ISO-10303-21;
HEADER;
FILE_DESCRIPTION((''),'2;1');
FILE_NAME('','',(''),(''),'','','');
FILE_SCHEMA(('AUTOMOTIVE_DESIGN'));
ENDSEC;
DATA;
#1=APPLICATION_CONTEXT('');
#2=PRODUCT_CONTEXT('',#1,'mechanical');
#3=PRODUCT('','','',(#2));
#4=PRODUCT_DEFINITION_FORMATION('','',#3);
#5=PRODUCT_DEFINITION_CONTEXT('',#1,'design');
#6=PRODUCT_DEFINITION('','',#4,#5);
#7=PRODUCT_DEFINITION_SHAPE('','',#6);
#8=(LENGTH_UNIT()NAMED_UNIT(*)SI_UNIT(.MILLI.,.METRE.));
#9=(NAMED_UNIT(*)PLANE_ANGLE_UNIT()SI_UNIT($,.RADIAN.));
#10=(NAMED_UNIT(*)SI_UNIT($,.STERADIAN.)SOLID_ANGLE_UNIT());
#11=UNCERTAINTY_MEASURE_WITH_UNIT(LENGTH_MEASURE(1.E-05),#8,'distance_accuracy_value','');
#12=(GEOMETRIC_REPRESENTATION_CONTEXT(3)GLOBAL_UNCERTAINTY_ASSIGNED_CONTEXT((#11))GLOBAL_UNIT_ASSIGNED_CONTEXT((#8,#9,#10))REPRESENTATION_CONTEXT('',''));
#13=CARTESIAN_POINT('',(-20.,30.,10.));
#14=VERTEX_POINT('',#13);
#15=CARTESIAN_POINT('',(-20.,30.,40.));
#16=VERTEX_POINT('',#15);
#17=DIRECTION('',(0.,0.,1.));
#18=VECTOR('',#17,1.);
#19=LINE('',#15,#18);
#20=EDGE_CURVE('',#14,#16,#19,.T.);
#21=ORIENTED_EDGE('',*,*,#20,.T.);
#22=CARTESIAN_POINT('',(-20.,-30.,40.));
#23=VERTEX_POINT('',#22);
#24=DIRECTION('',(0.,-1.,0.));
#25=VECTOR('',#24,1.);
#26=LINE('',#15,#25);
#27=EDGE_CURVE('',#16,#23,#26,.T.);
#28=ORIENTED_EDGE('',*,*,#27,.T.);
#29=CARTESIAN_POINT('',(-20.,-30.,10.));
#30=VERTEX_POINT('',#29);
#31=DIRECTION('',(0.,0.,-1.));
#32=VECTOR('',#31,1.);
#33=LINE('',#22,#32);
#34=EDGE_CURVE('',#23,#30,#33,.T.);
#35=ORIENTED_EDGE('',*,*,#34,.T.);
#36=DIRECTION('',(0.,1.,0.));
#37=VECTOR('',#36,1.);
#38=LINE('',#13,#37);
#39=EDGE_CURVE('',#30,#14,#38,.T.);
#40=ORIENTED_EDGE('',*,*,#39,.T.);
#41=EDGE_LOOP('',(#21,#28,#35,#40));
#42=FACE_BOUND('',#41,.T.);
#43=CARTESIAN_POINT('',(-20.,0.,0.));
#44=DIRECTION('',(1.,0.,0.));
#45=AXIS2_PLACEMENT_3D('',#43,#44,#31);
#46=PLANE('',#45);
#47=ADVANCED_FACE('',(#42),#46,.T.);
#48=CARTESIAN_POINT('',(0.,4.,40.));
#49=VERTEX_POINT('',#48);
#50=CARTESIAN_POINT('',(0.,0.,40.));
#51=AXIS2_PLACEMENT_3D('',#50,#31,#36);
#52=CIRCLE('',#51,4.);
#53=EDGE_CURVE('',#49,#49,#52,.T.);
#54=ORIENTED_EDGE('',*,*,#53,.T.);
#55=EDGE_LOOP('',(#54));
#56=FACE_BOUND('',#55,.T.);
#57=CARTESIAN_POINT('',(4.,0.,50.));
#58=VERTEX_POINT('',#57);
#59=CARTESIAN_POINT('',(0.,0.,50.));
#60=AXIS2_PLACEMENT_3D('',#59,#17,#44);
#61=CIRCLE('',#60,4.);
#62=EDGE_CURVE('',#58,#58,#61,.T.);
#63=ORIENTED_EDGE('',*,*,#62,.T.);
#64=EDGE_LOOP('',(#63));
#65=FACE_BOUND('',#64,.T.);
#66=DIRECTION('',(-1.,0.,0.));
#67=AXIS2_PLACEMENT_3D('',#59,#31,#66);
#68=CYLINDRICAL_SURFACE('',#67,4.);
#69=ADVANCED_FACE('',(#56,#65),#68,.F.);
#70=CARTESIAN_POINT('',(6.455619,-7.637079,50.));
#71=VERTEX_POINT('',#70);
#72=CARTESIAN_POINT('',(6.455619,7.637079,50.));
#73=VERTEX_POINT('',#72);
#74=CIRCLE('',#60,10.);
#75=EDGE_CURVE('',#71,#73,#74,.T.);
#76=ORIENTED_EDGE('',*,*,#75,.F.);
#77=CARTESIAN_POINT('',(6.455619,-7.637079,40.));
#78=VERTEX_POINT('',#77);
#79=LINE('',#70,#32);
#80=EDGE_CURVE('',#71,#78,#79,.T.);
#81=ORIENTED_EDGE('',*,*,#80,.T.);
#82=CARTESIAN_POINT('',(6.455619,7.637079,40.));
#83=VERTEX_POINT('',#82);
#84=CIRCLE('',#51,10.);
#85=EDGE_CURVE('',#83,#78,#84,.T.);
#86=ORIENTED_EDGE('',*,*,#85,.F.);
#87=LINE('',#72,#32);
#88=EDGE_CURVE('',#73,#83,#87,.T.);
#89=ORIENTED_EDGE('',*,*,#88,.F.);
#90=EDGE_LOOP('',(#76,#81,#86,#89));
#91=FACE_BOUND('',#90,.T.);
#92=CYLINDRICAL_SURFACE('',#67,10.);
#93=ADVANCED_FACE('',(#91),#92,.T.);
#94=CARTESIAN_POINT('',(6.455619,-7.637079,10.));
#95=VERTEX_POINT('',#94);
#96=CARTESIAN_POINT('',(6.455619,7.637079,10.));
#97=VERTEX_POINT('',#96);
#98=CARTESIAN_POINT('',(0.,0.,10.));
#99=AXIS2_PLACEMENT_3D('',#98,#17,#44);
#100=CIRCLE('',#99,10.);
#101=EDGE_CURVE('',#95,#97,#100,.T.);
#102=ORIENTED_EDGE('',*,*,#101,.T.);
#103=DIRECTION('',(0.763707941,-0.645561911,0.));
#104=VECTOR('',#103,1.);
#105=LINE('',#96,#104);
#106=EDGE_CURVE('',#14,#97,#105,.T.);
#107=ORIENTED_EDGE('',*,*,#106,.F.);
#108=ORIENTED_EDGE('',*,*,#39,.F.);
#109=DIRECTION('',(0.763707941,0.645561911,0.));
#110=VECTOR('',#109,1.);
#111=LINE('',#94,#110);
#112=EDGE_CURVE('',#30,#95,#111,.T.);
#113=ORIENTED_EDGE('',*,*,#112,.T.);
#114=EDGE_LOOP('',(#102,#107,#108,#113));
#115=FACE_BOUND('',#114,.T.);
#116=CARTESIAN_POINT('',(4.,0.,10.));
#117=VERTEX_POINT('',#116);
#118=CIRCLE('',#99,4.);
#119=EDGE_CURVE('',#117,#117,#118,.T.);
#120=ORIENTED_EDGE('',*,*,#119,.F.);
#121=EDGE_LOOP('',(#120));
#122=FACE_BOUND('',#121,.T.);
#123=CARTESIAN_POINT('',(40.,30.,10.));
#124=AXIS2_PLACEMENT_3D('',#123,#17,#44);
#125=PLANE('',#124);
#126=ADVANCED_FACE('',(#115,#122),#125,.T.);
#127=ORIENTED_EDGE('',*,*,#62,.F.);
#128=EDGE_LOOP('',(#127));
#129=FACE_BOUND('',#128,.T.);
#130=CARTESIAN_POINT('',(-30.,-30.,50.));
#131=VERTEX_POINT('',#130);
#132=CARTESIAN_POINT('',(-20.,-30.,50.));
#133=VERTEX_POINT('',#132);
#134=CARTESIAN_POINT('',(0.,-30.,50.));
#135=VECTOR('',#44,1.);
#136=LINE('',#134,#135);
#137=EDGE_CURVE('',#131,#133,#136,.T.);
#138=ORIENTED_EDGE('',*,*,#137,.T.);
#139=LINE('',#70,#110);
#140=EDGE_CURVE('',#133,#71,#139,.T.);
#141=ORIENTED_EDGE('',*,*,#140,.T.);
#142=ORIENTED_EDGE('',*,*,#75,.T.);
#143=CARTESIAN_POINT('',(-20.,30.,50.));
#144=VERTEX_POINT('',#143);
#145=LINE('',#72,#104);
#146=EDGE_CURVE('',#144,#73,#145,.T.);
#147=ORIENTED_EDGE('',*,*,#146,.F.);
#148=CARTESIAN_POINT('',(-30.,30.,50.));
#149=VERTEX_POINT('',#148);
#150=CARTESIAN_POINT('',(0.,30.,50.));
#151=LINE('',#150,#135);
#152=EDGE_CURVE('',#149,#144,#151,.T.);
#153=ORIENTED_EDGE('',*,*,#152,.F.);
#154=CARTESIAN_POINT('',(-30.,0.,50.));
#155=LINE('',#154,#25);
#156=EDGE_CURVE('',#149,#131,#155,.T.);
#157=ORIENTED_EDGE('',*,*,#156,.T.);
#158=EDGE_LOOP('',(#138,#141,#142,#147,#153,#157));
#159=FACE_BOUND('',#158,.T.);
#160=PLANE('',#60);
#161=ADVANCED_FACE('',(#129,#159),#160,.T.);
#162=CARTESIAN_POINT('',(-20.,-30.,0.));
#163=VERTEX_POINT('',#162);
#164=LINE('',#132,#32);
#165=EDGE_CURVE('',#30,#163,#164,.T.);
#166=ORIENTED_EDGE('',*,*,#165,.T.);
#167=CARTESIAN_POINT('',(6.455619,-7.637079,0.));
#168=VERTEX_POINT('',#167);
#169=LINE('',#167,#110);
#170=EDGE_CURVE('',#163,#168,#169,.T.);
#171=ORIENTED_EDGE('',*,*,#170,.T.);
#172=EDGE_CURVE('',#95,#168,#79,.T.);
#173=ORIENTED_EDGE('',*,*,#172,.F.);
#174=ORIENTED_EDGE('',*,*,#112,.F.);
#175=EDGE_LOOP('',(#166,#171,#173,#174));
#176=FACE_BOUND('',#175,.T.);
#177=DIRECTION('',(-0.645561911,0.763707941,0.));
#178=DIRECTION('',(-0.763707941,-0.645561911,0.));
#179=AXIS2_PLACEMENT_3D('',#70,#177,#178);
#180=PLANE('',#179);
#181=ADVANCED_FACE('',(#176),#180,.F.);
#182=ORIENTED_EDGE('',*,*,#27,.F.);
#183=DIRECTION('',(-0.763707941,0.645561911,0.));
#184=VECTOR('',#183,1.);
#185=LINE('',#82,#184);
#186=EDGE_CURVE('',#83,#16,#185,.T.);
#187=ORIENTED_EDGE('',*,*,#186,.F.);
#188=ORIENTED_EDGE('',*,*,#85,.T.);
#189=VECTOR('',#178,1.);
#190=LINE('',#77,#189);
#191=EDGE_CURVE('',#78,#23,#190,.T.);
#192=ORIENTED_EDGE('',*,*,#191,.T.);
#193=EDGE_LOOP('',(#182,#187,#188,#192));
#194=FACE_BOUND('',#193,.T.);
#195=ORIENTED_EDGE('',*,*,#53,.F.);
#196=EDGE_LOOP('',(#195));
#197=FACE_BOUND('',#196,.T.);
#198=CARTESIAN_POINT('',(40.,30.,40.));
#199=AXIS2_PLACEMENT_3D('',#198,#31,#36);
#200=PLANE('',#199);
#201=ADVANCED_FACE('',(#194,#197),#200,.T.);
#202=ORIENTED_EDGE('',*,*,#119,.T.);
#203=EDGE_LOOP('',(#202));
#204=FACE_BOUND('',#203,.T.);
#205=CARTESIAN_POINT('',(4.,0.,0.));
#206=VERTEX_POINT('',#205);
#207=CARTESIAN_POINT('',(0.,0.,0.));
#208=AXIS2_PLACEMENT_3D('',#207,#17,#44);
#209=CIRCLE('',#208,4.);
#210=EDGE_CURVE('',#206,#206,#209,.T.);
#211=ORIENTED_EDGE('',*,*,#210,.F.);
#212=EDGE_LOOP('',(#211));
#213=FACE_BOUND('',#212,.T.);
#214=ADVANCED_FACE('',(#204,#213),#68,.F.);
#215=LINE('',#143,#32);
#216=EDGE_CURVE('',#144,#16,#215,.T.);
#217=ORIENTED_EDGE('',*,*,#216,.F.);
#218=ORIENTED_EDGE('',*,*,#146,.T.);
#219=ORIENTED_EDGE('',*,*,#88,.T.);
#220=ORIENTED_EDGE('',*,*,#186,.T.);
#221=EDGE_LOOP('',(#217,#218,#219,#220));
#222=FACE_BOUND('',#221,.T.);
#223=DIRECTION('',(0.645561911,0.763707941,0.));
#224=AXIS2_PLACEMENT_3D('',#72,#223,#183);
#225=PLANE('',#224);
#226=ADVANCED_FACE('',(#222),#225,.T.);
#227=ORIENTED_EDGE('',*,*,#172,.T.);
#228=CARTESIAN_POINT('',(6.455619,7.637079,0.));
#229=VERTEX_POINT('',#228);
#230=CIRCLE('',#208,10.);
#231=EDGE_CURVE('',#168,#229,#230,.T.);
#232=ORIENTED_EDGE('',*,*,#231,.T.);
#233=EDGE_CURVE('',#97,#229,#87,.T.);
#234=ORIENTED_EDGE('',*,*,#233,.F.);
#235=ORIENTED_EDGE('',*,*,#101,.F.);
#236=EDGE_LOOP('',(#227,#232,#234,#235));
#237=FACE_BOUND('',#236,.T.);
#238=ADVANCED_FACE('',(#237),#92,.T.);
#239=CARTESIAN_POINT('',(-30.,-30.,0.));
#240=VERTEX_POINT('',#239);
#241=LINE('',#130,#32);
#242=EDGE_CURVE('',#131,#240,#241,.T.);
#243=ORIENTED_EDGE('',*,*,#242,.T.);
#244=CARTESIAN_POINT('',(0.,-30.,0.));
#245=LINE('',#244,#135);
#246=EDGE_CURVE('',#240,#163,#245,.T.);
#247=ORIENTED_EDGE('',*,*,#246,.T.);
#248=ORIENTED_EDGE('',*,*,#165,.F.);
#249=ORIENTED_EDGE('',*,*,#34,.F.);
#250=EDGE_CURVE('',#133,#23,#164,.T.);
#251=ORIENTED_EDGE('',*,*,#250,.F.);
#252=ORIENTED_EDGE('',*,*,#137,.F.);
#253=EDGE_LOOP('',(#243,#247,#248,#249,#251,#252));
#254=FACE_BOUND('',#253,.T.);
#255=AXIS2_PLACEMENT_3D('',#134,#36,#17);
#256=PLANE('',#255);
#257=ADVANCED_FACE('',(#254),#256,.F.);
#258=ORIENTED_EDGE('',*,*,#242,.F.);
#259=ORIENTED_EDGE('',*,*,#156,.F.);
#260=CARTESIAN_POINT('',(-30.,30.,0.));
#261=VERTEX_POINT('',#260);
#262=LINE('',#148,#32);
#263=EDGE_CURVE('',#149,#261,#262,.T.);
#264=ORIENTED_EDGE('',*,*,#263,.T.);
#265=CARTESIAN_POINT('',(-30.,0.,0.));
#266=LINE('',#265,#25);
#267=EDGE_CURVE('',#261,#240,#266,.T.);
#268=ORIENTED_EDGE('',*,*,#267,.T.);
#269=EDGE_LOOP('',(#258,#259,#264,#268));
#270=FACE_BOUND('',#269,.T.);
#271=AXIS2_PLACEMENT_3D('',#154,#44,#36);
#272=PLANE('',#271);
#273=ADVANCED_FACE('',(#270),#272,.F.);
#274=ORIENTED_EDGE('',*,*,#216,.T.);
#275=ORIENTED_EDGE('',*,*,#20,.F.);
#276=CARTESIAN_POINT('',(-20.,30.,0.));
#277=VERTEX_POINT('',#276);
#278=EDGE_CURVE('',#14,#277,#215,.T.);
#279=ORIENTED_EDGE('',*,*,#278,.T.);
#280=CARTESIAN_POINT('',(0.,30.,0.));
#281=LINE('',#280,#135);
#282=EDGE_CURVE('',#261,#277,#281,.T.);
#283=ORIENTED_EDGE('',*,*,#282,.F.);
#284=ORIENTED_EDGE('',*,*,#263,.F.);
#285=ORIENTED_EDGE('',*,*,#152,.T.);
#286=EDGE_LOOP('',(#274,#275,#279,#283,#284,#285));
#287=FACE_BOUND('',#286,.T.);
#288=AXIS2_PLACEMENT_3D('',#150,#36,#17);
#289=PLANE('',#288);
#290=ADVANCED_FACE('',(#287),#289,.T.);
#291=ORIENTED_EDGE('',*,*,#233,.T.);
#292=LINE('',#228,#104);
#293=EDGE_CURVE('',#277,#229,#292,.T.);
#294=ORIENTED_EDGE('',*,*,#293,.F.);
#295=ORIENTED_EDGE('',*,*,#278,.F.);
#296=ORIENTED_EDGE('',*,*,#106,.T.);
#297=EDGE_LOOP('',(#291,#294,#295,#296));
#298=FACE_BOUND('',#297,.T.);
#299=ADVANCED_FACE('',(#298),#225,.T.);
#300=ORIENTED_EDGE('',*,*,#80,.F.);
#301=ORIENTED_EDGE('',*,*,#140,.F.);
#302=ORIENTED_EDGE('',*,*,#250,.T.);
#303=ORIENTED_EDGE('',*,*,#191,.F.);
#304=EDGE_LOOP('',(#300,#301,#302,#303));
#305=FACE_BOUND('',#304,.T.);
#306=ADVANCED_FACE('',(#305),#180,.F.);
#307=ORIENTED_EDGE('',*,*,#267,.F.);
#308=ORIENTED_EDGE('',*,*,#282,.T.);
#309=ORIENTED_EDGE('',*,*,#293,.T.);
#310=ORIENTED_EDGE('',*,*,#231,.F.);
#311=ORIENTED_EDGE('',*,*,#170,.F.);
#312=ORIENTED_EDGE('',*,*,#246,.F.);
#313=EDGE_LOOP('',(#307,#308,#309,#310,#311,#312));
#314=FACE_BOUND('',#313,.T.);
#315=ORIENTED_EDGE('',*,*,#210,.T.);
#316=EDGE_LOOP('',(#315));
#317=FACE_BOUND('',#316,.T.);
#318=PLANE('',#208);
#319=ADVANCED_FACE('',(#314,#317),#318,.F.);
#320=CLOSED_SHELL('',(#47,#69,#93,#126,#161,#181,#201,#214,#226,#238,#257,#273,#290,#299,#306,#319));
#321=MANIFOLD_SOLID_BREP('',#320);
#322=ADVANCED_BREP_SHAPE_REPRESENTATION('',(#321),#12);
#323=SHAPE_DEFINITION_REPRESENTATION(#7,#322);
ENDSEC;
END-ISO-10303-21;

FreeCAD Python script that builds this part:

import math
import FreeCAD as App
import Part
import Sketcher
from FreeCAD import Vector
Q = App.Units.Quantity


def add_polygon(sketch, points):
    """Adds a closed chain of lines whose ends are joined by coincident constraints."""
    first, n = sketch.GeometryCount, len(points)
    for a, b in zip(points, points[1:] + points[:1]):
        sketch.addGeometry(Part.LineSegment(App.Vector(*a, 0), App.Vector(*b, 0)), False)
    for i in range(n):
        sketch.addConstraint(Sketcher.Constraint("Coincident", first + i, 2, first + (i + 1) % n, 1))

doc = App.newDocument("Part")
params = doc.addObject("Spreadsheet::Sheet", "Params")
for row, (alias, value) in enumerate([
    ("sketch1_diameter", "8 mm"),
    ("sketch1_radius", "10 mm"),
    ("sketch1_width", "10 mm"),
    ("sketch1_height", "60 mm"),
    ("pad1_length", "50 mm"),
    ("sketch2_width", "60 mm"),
    ("sketch2_height", "30 mm"),
    ("pocket1_length", "40 mm"),
    ("pocket1_length2", "20 mm"),
], start=1):
    params.set(f"A{row}", alias)
    params.set(f"B{row}", "=" + value)
    params.setAlias(f"B{row}", alias)

body = doc.addObject("PartDesign::Body", "Body")

sketch1 = doc.addObject("Sketcher::SketchObject", "Sketch")
body.addObject(sketch1)
sketch1.AttachmentSupport = (doc.XY_Plane, [""])
sketch1.MapMode = "FlatFace"
sketch1.addGeometry(Part.ArcOfCircle(Part.Circle(Vector(0, 0, 0), Vector(0, 0, 1), 10), math.radians(-50), math.radians(50)), False)
sketch1.addGeometry(Part.LineSegment(Vector(6.5, 7.6, 0), Vector(-20, 30, 0)), False)
sketch1.addGeometry(Part.LineSegment(Vector(-20, 30, 0), Vector(-30, 30, 0)), False)
sketch1.addGeometry(Part.LineSegment(Vector(-30, 30, 0), Vector(-30, -30, 0)), False)
sketch1.addGeometry(Part.LineSegment(Vector(-30, -30, 0), Vector(-20, -30, 0)), False)
sketch1.addGeometry(Part.LineSegment(Vector(-20, -30, 0), Vector(6.5, -7.6, 0)), False)
sketch1.addGeometry(Part.Circle(Vector(0, 0, 0), Vector(0, 0, 1), 4), False)
sketch1.addConstraint(Sketcher.Constraint("Tangent", 0, 2, 1, 1))
sketch1.addConstraint(Sketcher.Constraint("Coincident", 1, 2, 2, 1))
sketch1.addConstraint(Sketcher.Constraint("Coincident", 2, 2, 3, 1))
sketch1.addConstraint(Sketcher.Constraint("Coincident", 3, 2, 4, 1))
sketch1.addConstraint(Sketcher.Constraint("Coincident", 4, 2, 5, 1))
sketch1.addConstraint(Sketcher.Constraint("Tangent", 5, 2, 0, 1))
sketch1.addConstraint(Sketcher.Constraint("Horizontal", 2))
sketch1.addConstraint(Sketcher.Constraint("Vertical", 3))
sketch1.addConstraint(Sketcher.Constraint("Horizontal", 4))
sketch1.addConstraint(Sketcher.Constraint("Coincident", 0, 3, -1, 1))
sketch1.addConstraint(Sketcher.Constraint("Coincident", 6, 3, -1, 1))
sketch1.addConstraint(Sketcher.Constraint("Symmetric", 1, 2, 4, 2, -1))
sketch1.addConstraint(Sketcher.Constraint("Diameter", 6, Q("8 mm")))
sketch1.addConstraint(Sketcher.Constraint("Radius", 0, Q("10 mm")))
sketch1.addConstraint(Sketcher.Constraint("DistanceX", 2, 2, 2, 1, Q("10 mm")))
sketch1.addConstraint(Sketcher.Constraint("DistanceY", 3, 2, 3, 1, Q("60 mm")))
sketch1.addConstraint(Sketcher.Constraint("DistanceX", 1, 2, -1, 1, Q("20 mm")))
sketch1.setExpression("Constraints[12]", "Params.sketch1_diameter")
sketch1.setExpression("Constraints[13]", "Params.sketch1_radius")
sketch1.setExpression("Constraints[14]", "Params.sketch1_width")
sketch1.setExpression("Constraints[15]", "Params.sketch1_height")
pad1 = doc.addObject("PartDesign::Pad", "Pad")
body.addObject(pad1)
pad1.Profile = sketch1
pad1.setExpression("Length", "Params.pad1_length")

sketch2 = doc.addObject("Sketcher::SketchObject", "Sketch001")
body.addObject(sketch2)
sketch2.AttachmentSupport = (doc.YZ_Plane, [""])
sketch2.MapMode = "FlatFace"
add_polygon(sketch2, [(30, 40), (-30, 40), (-30, 10), (30, 10)])
sketch2.addConstraint(Sketcher.Constraint("Horizontal", 0))
sketch2.addConstraint(Sketcher.Constraint("Vertical", 1))
sketch2.addConstraint(Sketcher.Constraint("Horizontal", 2))
sketch2.addConstraint(Sketcher.Constraint("Vertical", 3))
sketch2.addConstraint(Sketcher.Constraint("DistanceX", 0, 2, 0, 1, Q("60 mm")))
sketch2.addConstraint(Sketcher.Constraint("DistanceY", 1, 2, 1, 1, Q("30 mm")))
sketch2.addConstraint(Sketcher.Constraint("DistanceX", 0, 2, -1, 1, Q("30 mm")))
sketch2.addConstraint(Sketcher.Constraint("DistanceY", -1, 1, 0, 2, Q("40 mm")))
sketch2.setExpression("Constraints[8]", "Params.sketch2_width")
sketch2.setExpression("Constraints[9]", "Params.sketch2_height")
pocket1 = doc.addObject("PartDesign::Pocket", "Pocket")
body.addObject(pocket1)
pocket1.Profile = sketch2
pocket1.Type = "TwoLengths"
pocket1.setExpression("Length", "Params.pocket1_length")
pocket1.setExpression("Length2", "Params.pocket1_length2")
pocket1.Reversed = True

doc.recompute()
